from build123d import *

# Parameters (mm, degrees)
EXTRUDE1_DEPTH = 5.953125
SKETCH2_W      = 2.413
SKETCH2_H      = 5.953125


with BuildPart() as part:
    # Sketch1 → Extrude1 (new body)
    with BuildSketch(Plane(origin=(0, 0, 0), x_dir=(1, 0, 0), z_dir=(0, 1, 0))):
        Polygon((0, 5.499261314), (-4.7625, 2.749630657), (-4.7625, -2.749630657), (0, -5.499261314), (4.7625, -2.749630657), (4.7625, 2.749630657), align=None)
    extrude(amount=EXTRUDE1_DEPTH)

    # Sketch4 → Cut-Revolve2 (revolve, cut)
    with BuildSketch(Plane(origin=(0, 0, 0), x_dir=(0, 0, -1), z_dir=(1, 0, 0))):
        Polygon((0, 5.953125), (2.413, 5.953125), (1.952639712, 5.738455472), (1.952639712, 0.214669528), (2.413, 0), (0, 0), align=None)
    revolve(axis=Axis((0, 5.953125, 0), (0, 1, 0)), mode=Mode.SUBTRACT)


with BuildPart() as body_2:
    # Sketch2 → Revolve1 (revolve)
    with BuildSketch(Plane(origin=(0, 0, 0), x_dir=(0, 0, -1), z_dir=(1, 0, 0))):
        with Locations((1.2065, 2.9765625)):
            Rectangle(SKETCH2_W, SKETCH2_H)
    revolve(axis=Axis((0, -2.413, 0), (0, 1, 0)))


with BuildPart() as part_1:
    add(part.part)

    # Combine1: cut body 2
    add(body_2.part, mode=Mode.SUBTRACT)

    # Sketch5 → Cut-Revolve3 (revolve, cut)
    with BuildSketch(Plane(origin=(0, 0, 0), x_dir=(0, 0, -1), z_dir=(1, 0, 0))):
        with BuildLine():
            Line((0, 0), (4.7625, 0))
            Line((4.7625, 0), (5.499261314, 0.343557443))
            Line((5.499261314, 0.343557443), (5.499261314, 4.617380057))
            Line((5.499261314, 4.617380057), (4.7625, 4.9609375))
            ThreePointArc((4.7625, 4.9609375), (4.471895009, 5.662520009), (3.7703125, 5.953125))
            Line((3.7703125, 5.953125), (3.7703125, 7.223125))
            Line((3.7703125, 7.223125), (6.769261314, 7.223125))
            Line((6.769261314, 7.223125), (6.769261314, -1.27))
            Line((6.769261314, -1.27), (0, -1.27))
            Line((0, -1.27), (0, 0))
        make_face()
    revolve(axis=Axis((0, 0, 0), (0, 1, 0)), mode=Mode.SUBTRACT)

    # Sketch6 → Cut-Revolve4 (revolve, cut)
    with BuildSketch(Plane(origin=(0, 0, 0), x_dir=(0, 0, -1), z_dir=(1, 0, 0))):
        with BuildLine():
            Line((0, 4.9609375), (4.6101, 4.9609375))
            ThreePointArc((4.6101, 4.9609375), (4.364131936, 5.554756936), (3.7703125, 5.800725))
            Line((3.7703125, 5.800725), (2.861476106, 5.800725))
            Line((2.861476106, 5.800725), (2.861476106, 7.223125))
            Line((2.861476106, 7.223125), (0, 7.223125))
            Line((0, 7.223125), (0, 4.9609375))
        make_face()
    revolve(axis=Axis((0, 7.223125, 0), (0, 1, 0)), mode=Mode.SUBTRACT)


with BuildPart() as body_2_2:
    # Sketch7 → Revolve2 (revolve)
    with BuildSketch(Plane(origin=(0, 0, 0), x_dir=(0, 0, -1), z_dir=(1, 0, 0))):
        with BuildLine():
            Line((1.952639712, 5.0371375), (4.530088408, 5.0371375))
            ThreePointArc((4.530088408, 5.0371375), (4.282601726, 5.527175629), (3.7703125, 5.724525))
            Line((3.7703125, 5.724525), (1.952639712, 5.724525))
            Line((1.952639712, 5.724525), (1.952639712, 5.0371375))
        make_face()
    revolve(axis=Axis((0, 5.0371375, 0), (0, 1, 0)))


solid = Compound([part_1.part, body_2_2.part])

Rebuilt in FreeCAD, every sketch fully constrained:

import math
import FreeCAD as App
import Part
import Sketcher
from FreeCAD import Vector
Q = App.Units.Quantity


def add_polygon(sketch, points):
    """Adds a closed chain of lines whose ends are joined by coincident constraints."""
    first, n = sketch.GeometryCount, len(points)
    for a, b in zip(points, points[1:] + points[:1]):
        sketch.addGeometry(Part.LineSegment(App.Vector(*a, 0), App.Vector(*b, 0)), False)
    for i in range(n):
        sketch.addConstraint(Sketcher.Constraint("Coincident", first + i, 2, first + (i + 1) % n, 1))

doc = App.newDocument("Part")
params = doc.addObject("Spreadsheet::Sheet", "Params")
for row, (alias, value) in enumerate([
    ("pad1_length", "0.234375 in"),
    ("sketch2_width", "0.234375 in"),
    ("sketch2_height", "0.095 in"),
    ("groove_angle", "360 deg"),
    ("sketch3_width", "0.234375 in"),
    ("sketch3_height", "0.095 in"),
    ("revolution_angle", "360 deg"),
    ("sketch4_width", "0.05 in"),
    ("sketch4_height", "0.1875 in"),
    ("groove2_angle", "360 deg"),
    ("sketch5_width", "0.056 in"),
    ("groove3_angle", "360 deg"),
    ("revolution2_angle", "360 deg"),
], start=1):
    params.set(f"A{row}", alias)
    params.set(f"B{row}", "=" + value)
    params.setAlias(f"B{row}", alias)

body = doc.addObject("PartDesign::Body", "Body")

# Sketch on XZ plane
sketch1 = doc.addObject("Sketcher::SketchObject", "Sketch")
body.addObject(sketch1)
sketch1.AttachmentSupport = (doc.XZ_Plane, [""])
sketch1.MapMode = "FlatFace"
add_polygon(sketch1, [(0, -5), (-5, -3), (-5, 3), (0, 5), (5, 3), (5, -3)])  # lines 0-5
sketch1.addConstraint(Sketcher.Constraint("Vertical", 1))
sketch1.addConstraint(Sketcher.Constraint("Vertical", 4))
sketch1.addConstraint(Sketcher.Constraint("Symmetric", 0, 2, 3, 2, -1, 1))
sketch1.addConstraint(Sketcher.Constraint("Symmetric", 2, 2, 5, 2, -1, 1))
sketch1.addConstraint(Sketcher.Constraint("PointOnObject", 2, 2, -2))
sketch1.addConstraint(Sketcher.Constraint("Parallel", 2, 5))
sketch1.addConstraint(Sketcher.Constraint("Horizontal", 1, 2, 3, 2))
sketch1.addConstraint(Sketcher.Constraint("Angle", 0, Q("150 deg")))
sketch1.addConstraint(Sketcher.Constraint("DistanceX", 0, 2, -1, 1, Q("0.1875 in")))
sketch1.addConstraint(Sketcher.Constraint("DistanceY", 1, 1, 1, 2, Q("5.499261 mm")))
pad1 = doc.addObject("PartDesign::Pad", "Pad")
body.addObject(pad1)
pad1.Profile = sketch1
pad1.setExpression("Length", "Params.pad1_length")
pad1.Reversed = True

# Sketch on YZ plane
sketch2 = doc.addObject("Sketcher::SketchObject", "Sketch001")
body.addObject(sketch2)
sketch2.AttachmentSupport = (doc.YZ_Plane, [""])
sketch2.MapMode = "FlatFace"
add_polygon(sketch2, [(6, -2.4), (6, 0), (0, 0), (0, -2.4), (0.2, -2), (5.7, -2)])  # lines 0-5
sketch2.addConstraint(Sketcher.Constraint("Vertical", 0))
sketch2.addConstraint(Sketcher.Constraint("Horizontal", 1))
sketch2.addConstraint(Sketcher.Constraint("Vertical", 2))
sketch2.addConstraint(Sketcher.Constraint("Horizontal", 4))
sketch2.addConstraint(Sketcher.Constraint("Coincident", 1, 2, -1, 1))
sketch2.addConstraint(Sketcher.Constraint("Horizontal", 2, 2, 5, 2))
sketch2.addConstraint(Sketcher.Constraint("Equal", 3, 5))
sketch2.addConstraint(Sketcher.Constraint("Angle", 3, Q("65 deg")))
sketch2.addConstraint(Sketcher.Constraint("DistanceX", 1, 2, 1, 1, Q("0.234375 in")))
sketch2.addConstraint(Sketcher.Constraint("DistanceY", 0, 1, 0, 2, Q("0.095 in")))
sketch2.addConstraint(Sketcher.Constraint("Distance", 3, Q("0.507951 mm")))
sketch2.setExpression("Constraints[14]", "Params.sketch2_width")
sketch2.setExpression("Constraints[15]", "Params.sketch2_height")
groove = doc.addObject("PartDesign::Groove", "Groove")
body.addObject(groove)
groove.Profile = sketch2
groove.ReferenceAxis = (sketch2, ["H_Axis"])
groove.setExpression("Angle", "Params.groove_angle")
body2 = doc.addObject("PartDesign::Body", "Body001")

# Sketch on YZ plane
sketch3 = doc.addObject("Sketcher::SketchObject", "Sketch002")
body2.addObject(sketch3)
sketch3.AttachmentSupport = (doc.getObject("YZ_Plane001"), [""])
sketch3.MapMode = "FlatFace"
add_polygon(sketch3, [(6, 0), (0, 0), (0, -2.4), (6, -2.4)])  # lines 0-3
sketch3.addConstraint(Sketcher.Constraint("Horizontal", 0))
sketch3.addConstraint(Sketcher.Constraint("Vertical", 1))
sketch3.addConstraint(Sketcher.Constraint("Horizontal", 2))
sketch3.addConstraint(Sketcher.Constraint("Vertical", 3))
sketch3.addConstraint(Sketcher.Constraint("Coincident", 0, 2, -1, 1))
sketch3.addConstraint(Sketcher.Constraint("DistanceX", 0, 2, 0, 1, Q("0.234375 in")))
sketch3.addConstraint(Sketcher.Constraint("DistanceY", 1, 2, 1, 1, Q("0.095 in")))
sketch3.setExpression("Constraints[9]", "Params.sketch3_width")
sketch3.setExpression("Constraints[10]", "Params.sketch3_height")
revolution = doc.addObject("PartDesign::Revolution", "Revolution")
body2.addObject(revolution)
revolution.Profile = sketch3
revolution.ReferenceAxis = (sketch3, ["H_Axis"])
revolution.setExpression("Angle", "Params.revolution_angle")
doc.recompute()

boolean = doc.addObject("PartDesign::Boolean", "Boolean")
body.addObject(boolean)
boolean.Type = "Cut"
boolean.addObjects([body2])

# Sketch on YZ plane
sketch4 = doc.addObject("Sketcher::SketchObject", "Sketch003")
body.addObject(sketch4)
sketch4.AttachmentSupport = (doc.YZ_Plane, [""])
sketch4.MapMode = "FlatFace"
sketch4.addGeometry(Part.LineSegment(Vector(0, -4.8, 0), Vector(0, 0, 0)), False)
sketch4.addGeometry(Part.LineSegment(Vector(0, 0, 0), Vector(-1.3, 0, 0)), False)
sketch4.addGeometry(Part.LineSegment(Vector(-1.3, 0, 0), Vector(-1.3, -6.8, 0)), False)
sketch4.addGeometry(Part.LineSegment(Vector(-1.3, -6.8, 0), Vector(7.2, -6.8, 0)), False)
sketch4.addGeometry(Part.LineSegment(Vector(7.2, -6.8, 0), Vector(7.2, -3.8, 0)), False)
sketch4.addGeometry(Part.LineSegment(Vector(7.2, -3.8, 0), Vector(6, -3.8, 0)), False)
sketch4.addGeometry(Part.ArcOfCircle(Part.Circle(Vector(5, -3.8, 0), Vector(0, 0, 1), 1), math.radians(-90), math.radians(0)), False)
sketch4.addGeometry(Part.LineSegment(Vector(5, -4.8, 0), Vector(4.6, -5.5, 0)), False)
sketch4.addGeometry(Part.LineSegment(Vector(4.6, -5.5, 0), Vector(0.3, -5.5, 0)), False)
sketch4.addGeometry(Part.LineSegment(Vector(0.3, -5.5, 0), Vector(0, -4.8, 0)), False)
sketch4.addConstraint(Sketcher.Constraint("Coincident", 0, 2, 1, 1))
sketch4.addConstraint(Sketcher.Constraint("Coincident", 1, 2, 2, 1))
sketch4.addConstraint(Sketcher.Constraint("Coincident", 2, 2, 3, 1))
sketch4.addConstraint(Sketcher.Constraint("Coincident", 3, 2, 4, 1))
sketch4.addConstraint(Sketcher.Constraint("Coincident", 4, 2, 5, 1))
sketch4.addConstraint(Sketcher.Constraint("Coincident", 5, 2, 6, 2))
sketch4.addConstraint(Sketcher.Constraint("Coincident", 6, 1, 7, 1))
sketch4.addConstraint(Sketcher.Constraint("Coincident", 7, 2, 8, 1))
sketch4.addConstraint(Sketcher.Constraint("Coincident", 8, 2, 9, 1))
sketch4.addConstraint(Sketcher.Constraint("Coincident", 9, 2, 0, 1))
sketch4.addConstraint(Sketcher.Constraint("Vertical", 0))
sketch4.addConstraint(Sketcher.Constraint("Horizontal", 1))
sketch4.addConstraint(Sketcher.Constraint("Vertical", 2))
sketch4.addConstraint(Sketcher.Constraint("Horizontal", 3))
sketch4.addConstraint(Sketcher.Constraint("Vertical", 4))
sketch4.addConstraint(Sketcher.Constraint("Horizontal", 5))
sketch4.addConstraint(Sketcher.Constraint("Horizontal", 8))
sketch4.addConstraint(Sketcher.Constraint("Coincident", 0, 2, -1, 1))
sketch4.addConstraint(Sketcher.Constraint("Horizontal", 6, 3, 4, 2))
sketch4.addConstraint(Sketcher.Constraint("Horizontal", 6, 1, 9, 2))
sketch4.addConstraint(Sketcher.Constraint("Equal", 1, 5))
sketch4.addConstraint(Sketcher.Constraint("Equal", 7, 9))
sketch4.addConstraint(Sketcher.Constraint("Angle", 7, Q("-115 deg")))
sketch4.addConstraint(Sketcher.Constraint("DistanceX", 1, 2, 1, 1, Q("0.05 in")))
sketch4.addConstraint(Sketcher.Constraint("DistanceY", 0, 1, 0, 2, Q("0.1875 in")))
sketch4.addConstraint(Sketcher.Constraint("DistanceY", 3, 2, 7, 2, Q("0.05 in")))
sketch4.addConstraint(Sketcher.Constraint("DistanceX", -1, 1, 5, 2, Q("0.234375 in")))
sketch4.addConstraint(Sketcher.Constraint("Radius", 6, Q("0.992188 mm")))
sketch4.addConstraint(Sketcher.Constraint("DistanceY", 2, 2, 2, 1, Q("6.769261 mm")))
sketch4.addConstraint(Sketcher.Constraint("DistanceX", 8, 2, 8, 1, Q("4.273823 mm")))
sketch4.setExpression("Constraints[23]", "Params.sketch4_width")
sketch4.setExpression("Constraints[24]", "Params.sketch4_height")
groove2 = doc.addObject("PartDesign::Groove", "Groove001")
body.addObject(groove2)
groove2.Profile = sketch4
groove2.ReferenceAxis = (sketch4, ["H_Axis"])
groove2.setExpression("Angle", "Params.groove2_angle")

# Sketch on YZ plane
sketch5 = doc.addObject("Sketcher::SketchObject", "Sketch004")
body.addObject(sketch5)
sketch5.AttachmentSupport = (doc.YZ_Plane, [""])
sketch5.MapMode = "FlatFace"
sketch5.addGeometry(Part.LineSegment(Vector(5, 0, 0), Vector(5, -4.6, 0)), False)
sketch5.addGeometry(Part.ArcOfCircle(Part.Circle(Vector(5, -3.8, 0), Vector(0, 0, 1), 0.8), math.radians(-90), math.radians(0)), False)
sketch5.addGeometry(Part.LineSegment(Vector(5.8, -3.8, 0), Vector(5.8, -2.9, 0)), False)
sketch5.addGeometry(Part.LineSegment(Vector(5.8, -2.9, 0), Vector(7.2, -2.9, 0)), False)
sketch5.addGeometry(Part.LineSegment(Vector(7.2, -2.9, 0), Vector(7.2, 0, 0)), False)
sketch5.addGeometry(Part.LineSegment(Vector(7.2, 0, 0), Vector(5, 0, 0)), False)
sketch5.addConstraint(Sketcher.Constraint("Coincident", 0, 2, 1, 1))
sketch5.addConstraint(Sketcher.Constraint("Tangent", 1, 2, 2, 1))
sketch5.addConstraint(Sketcher.Constraint("Coincident", 2, 2, 3, 1))
sketch5.addConstraint(Sketcher.Constraint("Coincident", 3, 2, 4, 1))
sketch5.addConstraint(Sketcher.Constraint("Coincident", 4, 2, 5, 1))
sketch5.addConstraint(Sketcher.Constraint("Coincident", 5, 2, 0, 1))
sketch5.addConstraint(Sketcher.Constraint("Vertical", 0))
sketch5.addConstraint(Sketcher.Constraint("Vertical", 2))
sketch5.addConstraint(Sketcher.Constraint("Horizontal", 3))
sketch5.addConstraint(Sketcher.Constraint("Vertical", 4))
sketch5.addConstraint(Sketcher.Constraint("Horizontal", 5))
sketch5.addConstraint(Sketcher.Constraint("PointOnObject", 4, 2, -1))
sketch5.addConstraint(Sketcher.Constraint("Vertical", 1, 3, 0, 2))
sketch5.addConstraint(Sketcher.Constraint("DistanceX", 3, 1, 3, 2, Q("0.056 in")))
sketch5.addConstraint(Sketcher.Constraint("DistanceY", 0, 2, 0, 1, Q("0.1815 in")))
sketch5.addConstraint(Sketcher.Constraint("Radius", 1, Q("0.839788 mm")))
sketch5.addConstraint(Sketcher.Constraint("DistanceY", 2, 1, 2, 2, Q("0.908836 mm")))
sketch5.addConstraint(Sketcher.Constraint("DistanceX", -1, 1, 1, 3, Q("4.960938 mm")))
sketch5.setExpression("Constraints[13]", "Params.sketch5_width")
groove3 = doc.addObject("PartDesign::Groove", "Groove002")
body.addObject(groove3)
groove3.Profile = sketch5
groove3.ReferenceAxis = (sketch5, ["H_Axis"])
groove3.setExpression("Angle", "Params.groove3_angle")
body3 = doc.addObject("PartDesign::Body", "Body002")

# Sketch on YZ plane
sketch6 = doc.addObject("Sketcher::SketchObject", "Sketch005")
body3.addObject(sketch6)
sketch6.AttachmentSupport = (doc.getObject("YZ_Plane002"), [""])
sketch6.MapMode = "FlatFace"
sketch6.addGeometry(Part.LineSegment(Vector(5, -2, 0), Vector(5, -4.5, 0)), False)
sketch6.addGeometry(Part.ArcOfCircle(Part.Circle(Vector(5, -3.8, 0), Vector(0, 0, 1), 0.8), math.radians(-84), math.radians(0)), False)
sketch6.addGeometry(Part.LineSegment(Vector(5.7, -3.8, 0), Vector(5.7, -2, 0)), False)
sketch6.addGeometry(Part.LineSegment(Vector(5.7, -2, 0), Vector(5, -2, 0)), False)
sketch6.addConstraint(Sketcher.Constraint("Coincident", 0, 2, 1, 1))
sketch6.addConstraint(Sketcher.Constraint("Tangent", 1, 2, 2, 1))
sketch6.addConstraint(Sketcher.Constraint("Coincident", 2, 2, 3, 1))
sketch6.addConstraint(Sketcher.Constraint("Coincident", 3, 2, 0, 1))
sketch6.addConstraint(Sketcher.Constraint("Vertical", 0))
sketch6.addConstraint(Sketcher.Constraint("Vertical", 2))
sketch6.addConstraint(Sketcher.Constraint("Horizontal", 3))
sketch6.addConstraint(Sketcher.Constraint("DistanceX", 1, 3, 0, 2, Q("0.003 in")))
sketch6.addConstraint(Sketcher.Constraint("Radius", 1, Q("0.763588 mm")))
sketch6.addConstraint(Sketcher.Constraint("DistanceY", 0, 2, 0, 1, Q("2.577449 mm")))
sketch6.addConstraint(Sketcher.Constraint("DistanceY", 0, 2, -1, 1, Q("4.530088 mm")))
sketch6.addConstraint(Sketcher.Constraint("DistanceX", -1, 1, 1, 3, Q("4.960937 mm")))
revolution2 = doc.addObject("PartDesign::Revolution", "Revolution001")
body3.addObject(revolution2)
revolution2.Profile = sketch6
revolution2.ReferenceAxis = (sketch6, ["H_Axis"])
revolution2.setExpression("Angle", "Params.revolution2_angle")

doc.recompute()
